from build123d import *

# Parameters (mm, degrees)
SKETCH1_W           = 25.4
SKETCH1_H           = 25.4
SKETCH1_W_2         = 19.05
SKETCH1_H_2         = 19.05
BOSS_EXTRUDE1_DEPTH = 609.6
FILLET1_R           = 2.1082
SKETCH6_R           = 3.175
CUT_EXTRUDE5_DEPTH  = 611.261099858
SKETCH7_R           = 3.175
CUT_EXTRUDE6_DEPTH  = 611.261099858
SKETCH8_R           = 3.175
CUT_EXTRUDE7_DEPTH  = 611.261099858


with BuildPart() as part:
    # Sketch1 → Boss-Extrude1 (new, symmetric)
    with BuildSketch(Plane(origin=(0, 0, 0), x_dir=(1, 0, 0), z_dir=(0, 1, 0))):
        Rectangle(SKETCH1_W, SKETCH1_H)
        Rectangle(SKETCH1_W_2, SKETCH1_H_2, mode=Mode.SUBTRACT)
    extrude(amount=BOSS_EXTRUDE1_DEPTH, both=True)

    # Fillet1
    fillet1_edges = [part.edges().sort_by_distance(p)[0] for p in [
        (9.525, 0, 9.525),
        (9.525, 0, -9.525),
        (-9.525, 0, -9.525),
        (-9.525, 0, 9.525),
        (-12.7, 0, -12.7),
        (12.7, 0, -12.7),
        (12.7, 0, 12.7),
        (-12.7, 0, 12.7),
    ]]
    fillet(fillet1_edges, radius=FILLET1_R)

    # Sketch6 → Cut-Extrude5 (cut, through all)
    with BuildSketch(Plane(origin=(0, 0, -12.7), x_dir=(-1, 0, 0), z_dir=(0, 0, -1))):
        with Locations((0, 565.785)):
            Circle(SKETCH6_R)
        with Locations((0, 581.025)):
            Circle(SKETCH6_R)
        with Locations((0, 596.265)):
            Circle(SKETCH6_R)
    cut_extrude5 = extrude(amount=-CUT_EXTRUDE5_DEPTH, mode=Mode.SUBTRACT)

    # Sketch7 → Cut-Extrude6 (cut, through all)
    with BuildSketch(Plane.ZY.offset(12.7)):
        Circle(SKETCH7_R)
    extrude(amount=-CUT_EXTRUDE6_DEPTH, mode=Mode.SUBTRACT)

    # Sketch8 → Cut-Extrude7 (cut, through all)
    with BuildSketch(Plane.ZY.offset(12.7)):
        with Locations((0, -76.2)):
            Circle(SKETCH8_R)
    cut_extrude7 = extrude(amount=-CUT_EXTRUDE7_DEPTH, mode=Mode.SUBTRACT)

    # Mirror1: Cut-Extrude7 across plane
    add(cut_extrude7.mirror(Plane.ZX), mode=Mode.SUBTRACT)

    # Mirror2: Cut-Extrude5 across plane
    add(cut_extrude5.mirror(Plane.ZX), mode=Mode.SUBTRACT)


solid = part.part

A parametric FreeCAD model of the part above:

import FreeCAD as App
import Part
import Sketcher
Q = App.Units.Quantity


def edges_at(feature, points):
    """Names of the edges that pass closest to the given points."""
    edges = feature.Shape.Edges
    near = lambda p: min(range(len(edges)), key=lambda i: edges[i].distToShape(Part.Vertex(*p))[0])
    return sorted({f"Edge{near(p) + 1}" for p in points})

doc = App.newDocument("Part")
body = doc.addObject("PartDesign::Body", "Body")

# Sketch on XZ plane
sketch1 = doc.addObject("Sketcher::SketchObject", "Sketch")
body.addObject(sketch1)
sketch1.AttachmentSupport = (doc.XZ_Plane, [""])
sketch1.MapMode = "FlatFace"
sketch1.addGeometry([
    Part.LineSegment(App.Vector(-12.7, -12.7, 0), App.Vector(-12.7, 12.7, 0)),  # 0
    Part.LineSegment(App.Vector(-12.7, 12.7, 0), App.Vector(12.7, 12.7, 0)),  # 1
    Part.LineSegment(App.Vector(12.7, 12.7, 0), App.Vector(12.7, -12.7, 0)),  # 2
    Part.LineSegment(App.Vector(12.7, -12.7, 0), App.Vector(-12.7, -12.7, 0)),  # 3
    Part.LineSegment(App.Vector(9.525, 9.525, 0), App.Vector(-9.525, 9.525, 0)),  # 4
    Part.LineSegment(App.Vector(-9.525, 9.525, 0), App.Vector(-9.525, -9.525, 0)),  # 5
    Part.LineSegment(App.Vector(-9.525, -9.525, 0), App.Vector(9.525, -9.525, 0)),  # 6
    Part.LineSegment(App.Vector(9.525, -9.525, 0), App.Vector(9.525, 9.525, 0)),  # 7
], False)
sketch1.addConstraint([
    Sketcher.Constraint("Coincident", 0, 2, 1, 1),
    Sketcher.Constraint("Coincident", 1, 2, 2, 1),
    Sketcher.Constraint("Coincident", 2, 2, 3, 1),
    Sketcher.Constraint("Coincident", 3, 2, 0, 1),
    Sketcher.Constraint("Coincident", 4, 2, 5, 1),
    Sketcher.Constraint("Coincident", 5, 2, 6, 1),
    Sketcher.Constraint("Coincident", 6, 2, 7, 1),
    Sketcher.Constraint("Coincident", 7, 2, 4, 1),
    Sketcher.Constraint("Vertical", 0),
    Sketcher.Constraint("Horizontal", 1),
    Sketcher.Constraint("Vertical", 2),
    Sketcher.Constraint("Horizontal", 3),
    Sketcher.Constraint("Horizontal", 4),
    Sketcher.Constraint("Vertical", 5),
    Sketcher.Constraint("Horizontal", 6),
    Sketcher.Constraint("Vertical", 7),
    Sketcher.Constraint("Symmetric", 0, 2, 2, 2, -1, 1),
    Sketcher.Constraint("Symmetric", 4, 2, 6, 2, -1, 1),
    Sketcher.Constraint("Equal", 3, 0),
    Sketcher.Constraint("Equal", 6, 5),
    Sketcher.Constraint("DistanceX", 1, 1, 1, 2, Q("1 in")),
    Sketcher.Constraint("DistanceX", 4, 2, 4, 1, Q("0.75 in")),
])
pad1 = doc.addObject("PartDesign::Pad", "Pad")
body.addObject(pad1)
pad1.Profile = sketch1
pad1.Length = Q("48 in")
pad1.Midplane = True
doc.recompute()

fillet = doc.addObject("PartDesign::Fillet", "Fillet")
body.addObject(fillet)
fillet.Base = (pad1, edges_at(pad1, [
    (9.525, 0, 9.525),
    (9.525, 0, -9.525),
    (-9.525, 0, -9.525),
    (-9.525, 0, 9.525),
    (-12.7, 0, -12.7),
    (12.7, 0, -12.7),
    (12.7, 0, 12.7),
    (-12.7, 0, 12.7),
]))
fillet.Radius = Q("0.083 in")

# Sketch on XY plane
sketch2 = doc.addObject("Sketcher::SketchObject", "Sketch001")
body.addObject(sketch2)
sketch2.AttachmentSupport = (doc.XY_Plane, [""])
sketch2.MapMode = "FlatFace"
sketch2.AttachmentOffset = App.Placement(App.Vector(0, 0, -0.5 * 25.4), App.Rotation())
sketch2.addGeometry([
    Part.Circle(App.Vector(0, 565.785, 0), App.Vector(0, 0, 1), 3.175),
    Part.Circle(App.Vector(0, 581.025, 0), App.Vector(0, 0, 1), 3.175),
    Part.Circle(App.Vector(0, 596.265, 0), App.Vector(0, 0, 1), 3.175),
], False)
sketch2.addConstraint([
    Sketcher.Constraint("Equal", 0, 1),
    Sketcher.Constraint("Equal", 1, 2),
    Sketcher.Constraint("PointOnObject", 0, 3, -2),
    Sketcher.Constraint("PointOnObject", 1, 3, -2),
    Sketcher.Constraint("PointOnObject", 2, 3, -2),
    Sketcher.Constraint("Diameter", 0, Q("0.25 in")),
    Sketcher.Constraint("DistanceY", 0, 3, 1, 3, Q("0.6 in")),
    Sketcher.Constraint("DistanceY", 1, 3, 2, 3, Q("0.6 in")),
    Sketcher.Constraint("DistanceY", -1, 1, 0, 3, Q("22.275 in")),
])
pocket1 = doc.addObject("PartDesign::Pocket", "Pocket")
body.addObject(pocket1)
pocket1.Profile = sketch2
pocket1.Type = "ThroughAll"
pocket1.Reversed = True

# Sketch on YZ plane
sketch3 = doc.addObject("Sketcher::SketchObject", "Sketch002")
body.addObject(sketch3)
sketch3.AttachmentSupport = (doc.YZ_Plane, [""])
sketch3.MapMode = "FlatFace"
sketch3.AttachmentOffset = App.Placement(App.Vector(0, 0, -0.5 * 25.4), App.Rotation())
sketch3.addGeometry(Part.Circle(App.Vector(0, 0, 0), App.Vector(0, 0, 1), 3.175), False)
sketch3.addConstraint([
    Sketcher.Constraint("Coincident", 0, 3, -1, 1),
    Sketcher.Constraint("Diameter", 0, Q("0.25 in")),
])
pocket2 = doc.addObject("PartDesign::Pocket", "Pocket001")
body.addObject(pocket2)
pocket2.Profile = sketch3
pocket2.Type = "ThroughAll"
pocket2.Reversed = True

# Sketch on YZ plane
sketch4 = doc.addObject("Sketcher::SketchObject", "Sketch003")
body.addObject(sketch4)
sketch4.AttachmentSupport = (doc.YZ_Plane, [""])
sketch4.MapMode = "FlatFace"
sketch4.AttachmentOffset = App.Placement(App.Vector(0, 0, -0.5 * 25.4), App.Rotation())
sketch4.addGeometry(Part.Circle(App.Vector(-76.2, 0, 0), App.Vector(0, 0, 1), 3.175), False)
sketch4.addConstraint([
    Sketcher.Constraint("PointOnObject", 0, 3, -1),
    Sketcher.Constraint("Diameter", 0, Q("0.25 in")),
    Sketcher.Constraint("DistanceX", 0, 3, -1, 1, Q("3 in")),
])
pocket3 = doc.addObject("PartDesign::Pocket", "Pocket002")
body.addObject(pocket3)
pocket3.Profile = sketch4
pocket3.Type = "ThroughAll"
pocket3.Reversed = True
doc.recompute()

mirrored = doc.addObject("PartDesign::Mirrored", "Mirrored")
body.addObject(mirrored)
mirrored.Originals = [pocket3]
mirrored.MirrorPlane = (doc.XZ_Plane, [""])
body.Tip = mirrored
doc.recompute()

mirrored2 = doc.addObject("PartDesign::Mirrored", "Mirrored001")
body.addObject(mirrored2)
mirrored2.Originals = [pocket1]
mirrored2.MirrorPlane = (doc.XZ_Plane, [""])
body.Tip = mirrored2

doc.recompute()
